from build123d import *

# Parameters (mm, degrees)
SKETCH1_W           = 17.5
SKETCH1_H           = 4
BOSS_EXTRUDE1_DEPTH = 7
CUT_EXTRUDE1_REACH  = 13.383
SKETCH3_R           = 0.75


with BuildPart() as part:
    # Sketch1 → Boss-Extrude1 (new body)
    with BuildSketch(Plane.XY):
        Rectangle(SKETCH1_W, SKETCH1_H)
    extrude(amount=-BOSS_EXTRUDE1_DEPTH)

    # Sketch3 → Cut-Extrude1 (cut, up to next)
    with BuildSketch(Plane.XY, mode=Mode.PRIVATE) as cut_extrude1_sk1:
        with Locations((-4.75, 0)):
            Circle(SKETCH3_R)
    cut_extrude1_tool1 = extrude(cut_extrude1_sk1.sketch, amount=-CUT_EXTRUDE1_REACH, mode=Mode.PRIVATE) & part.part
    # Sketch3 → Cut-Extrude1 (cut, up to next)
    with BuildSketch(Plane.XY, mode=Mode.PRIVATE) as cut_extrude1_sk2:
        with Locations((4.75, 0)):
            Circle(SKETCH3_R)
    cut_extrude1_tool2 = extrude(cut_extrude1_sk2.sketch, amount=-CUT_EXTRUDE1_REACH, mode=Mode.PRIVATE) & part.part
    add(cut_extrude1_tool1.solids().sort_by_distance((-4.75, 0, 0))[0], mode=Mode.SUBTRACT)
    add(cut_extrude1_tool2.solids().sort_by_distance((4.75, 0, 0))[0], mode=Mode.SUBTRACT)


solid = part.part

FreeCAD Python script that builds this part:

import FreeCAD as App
import Part
import Sketcher

V = App.Vector


def add_polygon(sketch, points):
    """Adds a closed chain of lines whose ends are joined by coincident constraints."""
    first, n = sketch.GeometryCount, len(points)
    for a, b in zip(points, points[1:] + points[:1]):
        sketch.addGeometry(Part.LineSegment(App.Vector(*a, 0), App.Vector(*b, 0)), False)
    for i in range(n):
        sketch.addConstraint(Sketcher.Constraint("Coincident", first + i, 2, first + (i + 1) % n, 1))

doc = App.newDocument("Part")
body = doc.addObject("PartDesign::Body", "Body")

# Sketch on XY plane
sketch1 = body.newObject("Sketcher::SketchObject", "Sketch")
sketch1.AttachmentSupport = (doc.getObject("XY_Plane"), [""])
sketch1.MapMode = "FlatFace"
add_polygon(sketch1, [(-8.8, 2), (-8.8, -2), (8.8, -2), (8.8, 2)])  # lines 0-3
sketch1.addConstraint(Sketcher.Constraint("Vertical", 0))
sketch1.addConstraint(Sketcher.Constraint("Horizontal", 1))
sketch1.addConstraint(Sketcher.Constraint("Vertical", 2))
sketch1.addConstraint(Sketcher.Constraint("Horizontal", 3))
sketch1.addConstraint(Sketcher.Constraint("Symmetric", 0, 2, 2, 2, -1, 1))
sketch1.addConstraint(Sketcher.Constraint("DistanceY", 0, 2, 0, 1, 4.0))
sketch1.addConstraint(Sketcher.Constraint("DistanceX", 1, 1, 1, 2, 17.5))
pad1 = body.newObject("PartDesign::Pad", "Pad")
pad1.Profile = sketch1
pad1.Length = 7
pad1.Reversed = True

# Sketch on XY plane
sketch2 = body.newObject("Sketcher::SketchObject", "Sketch001")
sketch2.AttachmentSupport = (doc.getObject("XY_Plane"), [""])
sketch2.MapMode = "FlatFace"
sketch2.addGeometry(Part.Circle(V(-4.8, 0, 0), V(0, 0, 1), 0.8), False)
sketch2.addConstraint(Sketcher.Constraint("PointOnObject", 0, 3, -1))
sketch2.addConstraint(Sketcher.Constraint("Diameter", 0, 1.5))
sketch2.addConstraint(Sketcher.Constraint("DistanceX", 0, 3, -1, 1, 4.75))
pocket1 = body.newObject("PartDesign::Pocket", "Pocket")
pocket1.Profile = sketch2
pocket1.Type = "UpToFirst"

# Sketch on XY plane
sketch3 = body.newObject("Sketcher::SketchObject", "Sketch002")
sketch3.AttachmentSupport = (doc.getObject("XY_Plane"), [""])
sketch3.MapMode = "FlatFace"
sketch3.addGeometry(Part.Circle(V(4.8, 0, 0), V(0, 0, 1), 0.8), False)
sketch3.addConstraint(Sketcher.Constraint("PointOnObject", 0, 3, -1))
sketch3.addConstraint(Sketcher.Constraint("Diameter", 0, 1.5))
sketch3.addConstraint(Sketcher.Constraint("DistanceX", -1, 1, 0, 3, 4.75))
pocket2 = body.newObject("PartDesign::Pocket", "Pocket001")
pocket2.Profile = sketch3
pocket2.Type = "UpToFirst"

doc.recompute()
